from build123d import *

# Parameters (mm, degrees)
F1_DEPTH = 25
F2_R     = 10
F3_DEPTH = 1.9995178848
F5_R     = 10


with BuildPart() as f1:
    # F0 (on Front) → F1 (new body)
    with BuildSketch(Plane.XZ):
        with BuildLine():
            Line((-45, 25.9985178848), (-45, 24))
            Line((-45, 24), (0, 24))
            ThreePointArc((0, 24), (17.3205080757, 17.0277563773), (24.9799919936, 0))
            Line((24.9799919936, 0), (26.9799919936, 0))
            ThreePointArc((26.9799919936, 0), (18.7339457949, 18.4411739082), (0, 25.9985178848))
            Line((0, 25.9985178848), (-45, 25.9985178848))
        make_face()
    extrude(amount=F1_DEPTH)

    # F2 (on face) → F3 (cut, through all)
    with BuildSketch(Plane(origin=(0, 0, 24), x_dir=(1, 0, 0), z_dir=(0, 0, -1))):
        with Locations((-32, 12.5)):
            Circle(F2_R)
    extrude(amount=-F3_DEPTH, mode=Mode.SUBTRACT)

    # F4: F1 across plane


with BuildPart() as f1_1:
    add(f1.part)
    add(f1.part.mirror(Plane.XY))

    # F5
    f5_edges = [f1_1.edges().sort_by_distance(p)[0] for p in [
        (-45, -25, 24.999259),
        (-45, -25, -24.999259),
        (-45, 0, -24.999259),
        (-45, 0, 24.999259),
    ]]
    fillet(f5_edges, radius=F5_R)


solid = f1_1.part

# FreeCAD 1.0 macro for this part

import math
import FreeCAD as App
import Part
import Sketcher


def edges_at(feature, points):
    """Names of the edges that pass closest to the given points."""
    edges = feature.Shape.Edges
    near = lambda p: min(range(len(edges)), key=lambda i: edges[i].distToShape(Part.Vertex(*p))[0])
    return sorted({f"Edge{near(p) + 1}" for p in points})

doc = App.newDocument("Part")
params = doc.addObject("Spreadsheet::Sheet", "Params")
for row, (alias, value) in enumerate([
    ("sketch1_radius", "25 mm"),
    ("sketch1_width", "45 mm"),
    ("sketch1_width2", "2 mm"),
    ("pad1_length", "25 mm"),
    ("sketch2_diameter", "20 mm"),
    ("fillet_radius", "10 mm"),
], start=1):
    params.set(f"A{row}", alias)
    params.set(f"B{row}", "=" + value)
    params.setAlias(f"B{row}", alias)

body = doc.addObject("PartDesign::Body", "Body")

# Sketch on XZ plane
sketch1 = body.newObject("Sketcher::SketchObject", "Sketch")
sketch1.AttachmentSupport = (doc.getObject("XZ_Plane"), [""])
sketch1.MapMode = "FlatFace"
sketch1.addGeometry([
    Part.LineSegment(App.Vector(-45, 26, 0), App.Vector(-45, 24, 0)),  # 0
    Part.LineSegment(App.Vector(-45, 24, 0), App.Vector(0, 24, 0)),  # 1
    Part.ArcOfCircle(Part.Circle(App.Vector(0, -1, 0), App.Vector(0, 0, 1), 25), math.radians(2), math.radians(90)),  # 2
    Part.LineSegment(App.Vector(25, 0, 0), App.Vector(27, 0, 0)),  # 3
    Part.ArcOfCircle(Part.Circle(App.Vector(0, -1, 0), App.Vector(0, 0, 1), 27), math.radians(2), math.radians(90)),  # 4
    Part.LineSegment(App.Vector(0, 26, 0), App.Vector(-45, 26, 0)),  # 5
], False)
sketch1.addConstraint([
    Sketcher.Constraint("Coincident", 0, 2, 1, 1),
    Sketcher.Constraint("Tangent", 1, 2, 2, 2),
    Sketcher.Constraint("Coincident", 2, 1, 3, 1),
    Sketcher.Constraint("Coincident", 3, 2, 4, 1),
    Sketcher.Constraint("Tangent", 4, 2, 5, 1),
    Sketcher.Constraint("Coincident", 5, 2, 0, 1),
    Sketcher.Constraint("Vertical", 0),
    Sketcher.Constraint("Horizontal", 1),
    Sketcher.Constraint("Horizontal", 3),
    Sketcher.Constraint("Horizontal", 5),
    Sketcher.Constraint("Coincident", 4, 3, 2, 3),
    Sketcher.Constraint("PointOnObject", 2, 3, -2),
    Sketcher.Constraint("PointOnObject", 2, 1, -1),
    Sketcher.Constraint("Radius", 2, 25.0),
    Sketcher.Constraint("DistanceX", 1, 1, 1, 2, 45.0),
    Sketcher.Constraint("DistanceX", 3, 1, 3, 2, 2.0),
    Sketcher.Constraint("DistanceY", 2, 3, -1, 1, 1.0),
])
sketch1.setExpression("Constraints[13]", "Params.sketch1_radius")
sketch1.setExpression("Constraints[14]", "Params.sketch1_width")
sketch1.setExpression("Constraints[15]", "Params.sketch1_width2")
pad1 = body.newObject("PartDesign::Pad", "Pad")
pad1.Profile = sketch1
pad1.setExpression("Length", "Params.pad1_length")

# Sketch on XY plane
sketch2 = body.newObject("Sketcher::SketchObject", "Sketch001")
sketch2.AttachmentSupport = (doc.getObject("XY_Plane"), [""])
sketch2.MapMode = "FlatFace"
sketch2.AttachmentOffset = App.Placement(App.Vector(0, 0, 24), App.Rotation())
sketch2.addGeometry(Part.Circle(App.Vector(-32, -12, 0), App.Vector(0, 0, 1), 10), False)
sketch2.addConstraint([
    Sketcher.Constraint("Diameter", 0, 20.0),
    Sketcher.Constraint("DistanceX", 0, 3, -1, 1, 32.0),
    Sketcher.Constraint("DistanceY", 0, 3, -1, 1, 12.5),
])
sketch2.setExpression("Constraints[0]", "Params.sketch2_diameter")
pocket1 = body.newObject("PartDesign::Pocket", "Pocket")
pocket1.Profile = sketch2
pocket1.Type = "ThroughAll"
pocket1.Reversed = True
body2 = doc.addObject("PartDesign::Body", "Body001")
doc.recompute()

body2.BaseFeature = body
doc.recompute()

mirroring = doc.addObject("Part::Mirroring", "Mirroring")
mirroring.Source = body
mirroring.Base = App.Vector(0, 0, 0)
mirroring.Normal = App.Vector(0, 0, 1)
body3 = doc.addObject("PartDesign::Body", "Body002")
body3.BaseFeature = mirroring
boolean = body2.newObject("PartDesign::Boolean", "Boolean")
boolean.Type = "Fuse"
boolean.addObjects([body3])
doc.recompute()

fillet = body2.newObject("PartDesign::Fillet", "Fillet")
fillet.Base = (boolean, edges_at(boolean, [
    (-45, -25, 24.999),
    (-45, -25, -24.999),
    (-45, 0, -24.999),
    (-45, 0, 24.999),
]))
fillet.setExpression("Radius", "Params.fillet_radius")
mirroring.Visibility = False

doc.recompute()
